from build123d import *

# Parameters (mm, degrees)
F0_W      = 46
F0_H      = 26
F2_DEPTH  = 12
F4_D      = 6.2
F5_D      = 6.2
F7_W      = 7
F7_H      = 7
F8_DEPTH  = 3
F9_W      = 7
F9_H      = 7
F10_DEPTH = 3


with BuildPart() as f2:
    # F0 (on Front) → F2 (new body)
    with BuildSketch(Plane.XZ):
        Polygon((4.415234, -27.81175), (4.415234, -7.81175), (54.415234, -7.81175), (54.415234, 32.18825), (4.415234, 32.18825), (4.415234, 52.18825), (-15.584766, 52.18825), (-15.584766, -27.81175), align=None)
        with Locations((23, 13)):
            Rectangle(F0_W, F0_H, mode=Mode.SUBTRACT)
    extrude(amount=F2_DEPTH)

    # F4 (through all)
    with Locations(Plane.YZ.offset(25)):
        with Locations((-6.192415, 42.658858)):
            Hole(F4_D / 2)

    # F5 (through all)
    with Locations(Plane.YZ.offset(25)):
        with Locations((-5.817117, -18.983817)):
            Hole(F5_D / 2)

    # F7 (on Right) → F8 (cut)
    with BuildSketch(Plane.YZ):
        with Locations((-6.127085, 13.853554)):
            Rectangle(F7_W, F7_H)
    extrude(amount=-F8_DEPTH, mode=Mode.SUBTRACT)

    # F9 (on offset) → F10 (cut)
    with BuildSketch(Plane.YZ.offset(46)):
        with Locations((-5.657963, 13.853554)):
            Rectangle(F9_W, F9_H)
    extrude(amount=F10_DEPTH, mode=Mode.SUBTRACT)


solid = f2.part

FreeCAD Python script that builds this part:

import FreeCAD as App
import Part
import Sketcher
Q = App.Units.Quantity


def add_polygon(sketch, points):
    """Adds a closed chain of lines whose ends are joined by coincident constraints."""
    first, n = sketch.GeometryCount, len(points)
    for a, b in zip(points, points[1:] + points[:1]):
        sketch.addGeometry(Part.LineSegment(App.Vector(*a, 0), App.Vector(*b, 0)), False)
    for i in range(n):
        sketch.addConstraint(Sketcher.Constraint("Coincident", first + i, 2, first + (i + 1) % n, 1))

doc = App.newDocument("Part")
body = doc.addObject("PartDesign::Body", "Body")

# Sketch on XZ plane
sketch1 = body.newObject("Sketcher::SketchObject", "Sketch")
sketch1.AttachmentSupport = (doc.getObject("XZ_Plane"), [""])
sketch1.MapMode = "FlatFace"
add_polygon(sketch1, [(4, -28), (4, -8), (54, -8), (54, 32), (4, 32), (4, 52), (-16, 52), (-16, -28)])  # lines 0-7
add_polygon(sketch1, [(46, 0), (0, 0), (0, 26), (46, 26)])  # lines 8-11
sketch1.addConstraint([
    Sketcher.Constraint("Vertical", 0),
    Sketcher.Constraint("Horizontal", 1),
    Sketcher.Constraint("Vertical", 2),
    Sketcher.Constraint("Horizontal", 3),
    Sketcher.Constraint("Vertical", 4),
    Sketcher.Constraint("Horizontal", 5),
    Sketcher.Constraint("Vertical", 6),
    Sketcher.Constraint("Horizontal", 7),
    Sketcher.Constraint("Horizontal", 8),
    Sketcher.Constraint("Vertical", 9),
    Sketcher.Constraint("Horizontal", 10),
    Sketcher.Constraint("Vertical", 11),
    Sketcher.Constraint("Coincident", 8, 2, -1, 1),
    Sketcher.Constraint("Vertical", 0, 2, 3, 2),
    Sketcher.Constraint("Equal", 7, 0),
    Sketcher.Constraint("Equal", 0, 4),
    Sketcher.Constraint("DistanceX", 1, 1, 1, 2, Q("50 mm")),
    Sketcher.Constraint("DistanceX", 5, 2, 5, 1, Q("20 mm")),
    Sketcher.Constraint("DistanceX", 8, 2, 8, 1, Q("46 mm")),
    Sketcher.Constraint("DistanceY", 2, 1, 2, 2, Q("40 mm")),
    Sketcher.Constraint("DistanceY", 9, 1, 9, 2, Q("26 mm")),
    Sketcher.Constraint("DistanceY", 0, 2, -1, 1, Q("7.81175 mm")),
    Sketcher.Constraint("DistanceX", -1, 1, 0, 2, Q("4.415234 mm")),
])
pad1 = body.newObject("PartDesign::Pad", "Pad")
pad1.Profile = sketch1
pad1.Length = 12

# Sketch on YZ plane
sketch2 = body.newObject("Sketcher::SketchObject", "Sketch001")
sketch2.AttachmentSupport = (doc.getObject("YZ_Plane"), [""])
sketch2.MapMode = "FlatFace"
sketch2.AttachmentOffset = App.Placement(App.Vector(0, 0, 25), App.Rotation())
sketch2.addGeometry(Part.Circle(App.Vector(-6.2, 42.7, 0), App.Vector(0, 0, 1), 3.1), False)
sketch2.addConstraint([
    Sketcher.Constraint("Diameter", 0, Q("6.2 mm")),
    Sketcher.Constraint("DistanceY", -1, 1, 0, 3, Q("42.658858 mm")),
    Sketcher.Constraint("DistanceX", 0, 3, -1, 1, Q("6.192415 mm")),
])
doc.recompute()
hole = body.newObject("PartDesign::Hole", "Hole")
hole.Profile = sketch2
hole.ThreadType = "None"
hole.Diameter = 6.2
hole.DepthType = "ThroughAll"

# Sketch on YZ plane
sketch3 = body.newObject("Sketcher::SketchObject", "Sketch002")
sketch3.AttachmentSupport = (doc.getObject("YZ_Plane"), [""])
sketch3.MapMode = "FlatFace"
sketch3.AttachmentOffset = App.Placement(App.Vector(0, 0, 25), App.Rotation())
sketch3.addGeometry(Part.Circle(App.Vector(-5.8, -19, 0), App.Vector(0, 0, 1), 3.1), False)
sketch3.addConstraint([
    Sketcher.Constraint("Diameter", 0, Q("6.2 mm")),
    Sketcher.Constraint("DistanceX", 0, 3, -1, 1, Q("5.817117 mm")),
    Sketcher.Constraint("DistanceY", 0, 3, -1, 1, Q("18.983817 mm")),
])
doc.recompute()
hole2 = body.newObject("PartDesign::Hole", "Hole001")
hole2.Profile = sketch3
hole2.ThreadType = "None"
hole2.Diameter = 6.2
hole2.DepthType = "ThroughAll"

# Sketch on YZ plane
sketch4 = body.newObject("Sketcher::SketchObject", "Sketch003")
sketch4.AttachmentSupport = (doc.getObject("YZ_Plane"), [""])
sketch4.MapMode = "FlatFace"
add_polygon(sketch4, [(-10, 17), (-10, 10), (-3, 10), (-3, 17)])  # lines 0-3
sketch4.addConstraint([
    Sketcher.Constraint("Vertical", 0),
    Sketcher.Constraint("Horizontal", 1),
    Sketcher.Constraint("Vertical", 2),
    Sketcher.Constraint("Horizontal", 3),
    Sketcher.Constraint("Equal", 3, 0),
    Sketcher.Constraint("DistanceX", 1, 1, 1, 2, Q("7 mm")),
    Sketcher.Constraint("DistanceX", 0, 2, -1, 1, Q("9.627085 mm")),
    Sketcher.Constraint("DistanceY", -1, 1, 0, 2, Q("10.353554 mm")),
])
pocket1 = body.newObject("PartDesign::Pocket", "Pocket")
pocket1.Profile = sketch4
pocket1.Length = 3

# Sketch on YZ plane
sketch5 = body.newObject("Sketcher::SketchObject", "Sketch004")
sketch5.AttachmentSupport = (doc.getObject("YZ_Plane"), [""])
sketch5.MapMode = "FlatFace"
sketch5.AttachmentOffset = App.Placement(App.Vector(0, 0, 46), App.Rotation())
add_polygon(sketch5, [(-9, 17), (-9, 10), (-2, 10), (-2, 17)])  # lines 0-3
sketch5.addConstraint([
    Sketcher.Constraint("Vertical", 0),
    Sketcher.Constraint("Horizontal", 1),
    Sketcher.Constraint("Vertical", 2),
    Sketcher.Constraint("Horizontal", 3),
    Sketcher.Constraint("Equal", 3, 0),
    Sketcher.Constraint("DistanceX", 1, 1, 1, 2, Q("7 mm")),
    Sketcher.Constraint("DistanceX", 0, 2, -1, 1, Q("9.157963 mm")),
    Sketcher.Constraint("DistanceY", -1, 1, 0, 2, Q("10.353554 mm")),
])
pocket2 = body.newObject("PartDesign::Pocket", "Pocket001")
pocket2.Profile = sketch5
pocket2.Length = 3
pocket2.Reversed = True

doc.recompute()
